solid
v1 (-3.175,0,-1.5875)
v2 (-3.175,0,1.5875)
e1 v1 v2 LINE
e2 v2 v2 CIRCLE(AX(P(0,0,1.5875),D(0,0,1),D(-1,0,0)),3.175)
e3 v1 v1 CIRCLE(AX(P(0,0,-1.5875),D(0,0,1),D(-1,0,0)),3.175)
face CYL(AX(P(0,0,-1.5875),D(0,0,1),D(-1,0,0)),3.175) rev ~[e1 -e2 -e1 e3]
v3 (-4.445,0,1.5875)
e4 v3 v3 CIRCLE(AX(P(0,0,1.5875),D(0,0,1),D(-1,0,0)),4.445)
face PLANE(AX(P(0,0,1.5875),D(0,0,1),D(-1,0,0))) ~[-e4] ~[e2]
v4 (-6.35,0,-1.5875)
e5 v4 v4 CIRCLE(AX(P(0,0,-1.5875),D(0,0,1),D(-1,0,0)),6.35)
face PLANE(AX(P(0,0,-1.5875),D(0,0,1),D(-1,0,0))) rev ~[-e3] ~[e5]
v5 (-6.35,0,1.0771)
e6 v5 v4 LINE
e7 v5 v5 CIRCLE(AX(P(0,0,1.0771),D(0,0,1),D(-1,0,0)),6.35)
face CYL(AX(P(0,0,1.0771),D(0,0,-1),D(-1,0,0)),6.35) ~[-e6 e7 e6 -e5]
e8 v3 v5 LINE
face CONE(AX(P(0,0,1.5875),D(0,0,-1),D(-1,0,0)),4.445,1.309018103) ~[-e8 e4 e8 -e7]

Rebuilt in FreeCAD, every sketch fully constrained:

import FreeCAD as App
import Part
import Sketcher
Q = App.Units.Quantity


def add_polygon(sketch, points):
    """Adds a closed chain of lines whose ends are joined by coincident constraints."""
    first, n = sketch.GeometryCount, len(points)
    for a, b in zip(points, points[1:] + points[:1]):
        sketch.addGeometry(Part.LineSegment(App.Vector(*a, 0), App.Vector(*b, 0)), False)
    for i in range(n):
        sketch.addConstraint(Sketcher.Constraint("Coincident", first + i, 2, first + (i + 1) % n, 1))

doc = App.newDocument("Part")
body = doc.addObject("PartDesign::Body", "Body")

# Sketch on XZ plane
sketch1 = body.newObject("Sketcher::SketchObject", "Sketch")
sketch1.AttachmentSupport = (doc.getObject("XZ_Plane"), [""])
sketch1.MapMode = "FlatFace"
add_polygon(sketch1, [(-3.2, 1.6), (-3.2, -1.6), (-6.3, -1.6), (-6.3, 1.1), (-4.4, 1.6)])  # lines 0-4
sketch1.addConstraint(Sketcher.Constraint("Vertical", 0))
sketch1.addConstraint(Sketcher.Constraint("Horizontal", 1))
sketch1.addConstraint(Sketcher.Constraint("Vertical", 2))
sketch1.addConstraint(Sketcher.Constraint("Horizontal", 4))
sketch1.addConstraint(Sketcher.Constraint("Equal", 1, 0))
sketch1.addConstraint(Sketcher.Constraint("DistanceX", 4, 1, 4, 2, Q("0.05 in")))
sketch1.addConstraint(Sketcher.Constraint("DistanceX", 1, 2, 1, 1, Q("0.125 in")))
sketch1.addConstraint(Sketcher.Constraint("DistanceX", 1, 2, -1, 1, Q("0.25 in")))
sketch1.addConstraint(Sketcher.Constraint("DistanceY", 2, 1, 2, 2, Q("0.1049 in")))
sketch1.addConstraint(Sketcher.Constraint("DistanceY", 0, 2, -1, 1, Q("0.0625 in")))
revolution = body.newObject("PartDesign::Revolution", "Revolution")
revolution.Profile = sketch1
revolution.ReferenceAxis = (sketch1, ["V_Axis"])
revolution.Angle = 360

doc.recompute()
